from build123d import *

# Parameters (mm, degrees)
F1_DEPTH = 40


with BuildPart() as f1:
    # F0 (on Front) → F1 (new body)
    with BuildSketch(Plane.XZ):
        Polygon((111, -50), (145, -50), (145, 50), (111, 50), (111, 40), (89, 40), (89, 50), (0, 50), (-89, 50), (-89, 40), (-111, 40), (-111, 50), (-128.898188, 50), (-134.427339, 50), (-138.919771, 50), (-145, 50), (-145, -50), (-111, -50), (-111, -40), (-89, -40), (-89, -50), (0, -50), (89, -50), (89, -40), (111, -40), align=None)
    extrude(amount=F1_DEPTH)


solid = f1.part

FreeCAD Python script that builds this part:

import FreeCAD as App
import Part
import Sketcher

doc = App.newDocument("Part")
params = doc.addObject("Spreadsheet::Sheet", "Params")
for row, (alias, value) in enumerate([
    ("sketch1_width", "34 mm"),
    ("sketch1_width2", "22 mm"),
    ("sketch1_width3", "178 mm"),
    ("sketch1_height", "100 mm"),
    ("sketch1_height2", "10 mm"),
    ("pad1_length", "40 mm"),
], start=1):
    params.set(f"A{row}", alias)
    params.set(f"B{row}", "=" + value)
    params.setAlias(f"B{row}", alias)

body = doc.addObject("PartDesign::Body", "Body")

sketch1 = body.newObject("Sketcher::SketchObject", "Sketch")
sketch1.AttachmentSupport = (doc.getObject("XZ_Plane"), [""])
sketch1.MapMode = "FlatFace"
sketch1.addGeometry([
    Part.LineSegment(App.Vector(111, -50, 0), App.Vector(145, -50, 0)),
    Part.LineSegment(App.Vector(145, -50, 0), App.Vector(145, 50, 0)),
    Part.LineSegment(App.Vector(145, 50, 0), App.Vector(111, 50, 0)),
    Part.LineSegment(App.Vector(111, 50, 0), App.Vector(111, 40, 0)),
    Part.LineSegment(App.Vector(111, 40, 0), App.Vector(89, 40, 0)),
    Part.LineSegment(App.Vector(89, 40, 0), App.Vector(89, 50, 0)),
    Part.LineSegment(App.Vector(89, 50, 0), App.Vector(-89, 50, 0)),
    Part.LineSegment(App.Vector(-89, 50, 0), App.Vector(-89, 40, 0)),
    Part.LineSegment(App.Vector(-89, 40, 0), App.Vector(-111, 40, 0)),
    Part.LineSegment(App.Vector(-111, 40, 0), App.Vector(-111, 50, 0)),
    Part.LineSegment(App.Vector(-111, 50, 0), App.Vector(-145, 50, 0)),
    Part.LineSegment(App.Vector(-145, 50, 0), App.Vector(-145, -50, 0)),
    Part.LineSegment(App.Vector(-145, -50, 0), App.Vector(-111, -50, 0)),
    Part.LineSegment(App.Vector(-111, -50, 0), App.Vector(-111, -40, 0)),
    Part.LineSegment(App.Vector(-111, -40, 0), App.Vector(-89, -40, 0)),
    Part.LineSegment(App.Vector(-89, -40, 0), App.Vector(-89, -50, 0)),
    Part.LineSegment(App.Vector(-89, -50, 0), App.Vector(89, -50, 0)),
    Part.LineSegment(App.Vector(89, -50, 0), App.Vector(89, -40, 0)),
    Part.LineSegment(App.Vector(89, -40, 0), App.Vector(111, -40, 0)),
    Part.LineSegment(App.Vector(111, -40, 0), App.Vector(111, -50, 0)),
], False)
sketch1.addConstraint([
    Sketcher.Constraint("Coincident", 0, 2, 1, 1),
    Sketcher.Constraint("Coincident", 1, 2, 2, 1),
    Sketcher.Constraint("Coincident", 2, 2, 3, 1),
    Sketcher.Constraint("Coincident", 3, 2, 4, 1),
    Sketcher.Constraint("Coincident", 4, 2, 5, 1),
    Sketcher.Constraint("Coincident", 5, 2, 6, 1),
    Sketcher.Constraint("Coincident", 6, 2, 7, 1),
    Sketcher.Constraint("Coincident", 7, 2, 8, 1),
    Sketcher.Constraint("Coincident", 8, 2, 9, 1),
    Sketcher.Constraint("Coincident", 9, 2, 10, 1),
    Sketcher.Constraint("Coincident", 10, 2, 11, 1),
    Sketcher.Constraint("Coincident", 11, 2, 12, 1),
    Sketcher.Constraint("Coincident", 12, 2, 13, 1),
    Sketcher.Constraint("Coincident", 13, 2, 14, 1),
    Sketcher.Constraint("Coincident", 14, 2, 15, 1),
    Sketcher.Constraint("Coincident", 15, 2, 16, 1),
    Sketcher.Constraint("Coincident", 16, 2, 17, 1),
    Sketcher.Constraint("Coincident", 17, 2, 18, 1),
    Sketcher.Constraint("Coincident", 18, 2, 19, 1),
    Sketcher.Constraint("Coincident", 19, 2, 0, 1),
    Sketcher.Constraint("Horizontal", 0),
    Sketcher.Constraint("Vertical", 1),
    Sketcher.Constraint("Horizontal", 2),
    Sketcher.Constraint("Vertical", 3),
    Sketcher.Constraint("Horizontal", 4),
    Sketcher.Constraint("Vertical", 5),
    Sketcher.Constraint("Horizontal", 6),
    Sketcher.Constraint("Vertical", 7),
    Sketcher.Constraint("Horizontal", 8),
    Sketcher.Constraint("Vertical", 9),
    Sketcher.Constraint("Horizontal", 10),
    Sketcher.Constraint("Vertical", 11),
    Sketcher.Constraint("Horizontal", 12),
    Sketcher.Constraint("Vertical", 13),
    Sketcher.Constraint("Horizontal", 14),
    Sketcher.Constraint("Vertical", 15),
    Sketcher.Constraint("Horizontal", 16),
    Sketcher.Constraint("Vertical", 17),
    Sketcher.Constraint("Horizontal", 18),
    Sketcher.Constraint("Vertical", 19),
    Sketcher.Constraint("Symmetric", 0, 2, 10, 2, -1, 1),
    Sketcher.Constraint("Symmetric", 2, 2, 12, 2, -1, 1),
    Sketcher.Constraint("Symmetric", 4, 2, 14, 2, -1, 1),
    Sketcher.Constraint("Symmetric", 6, 2, 16, 2, -1, 1),
    Sketcher.Constraint("Symmetric", 8, 2, 18, 2, -1, 1),
    Sketcher.Constraint("Symmetric", 4, 2, 7, 2, -2),
    Sketcher.Constraint("Symmetric", 2, 2, 9, 2, -2),
    Sketcher.Constraint("Horizontal", 2, 2, 5, 2),
    Sketcher.Constraint("DistanceX", 0, 1, 0, 2, 34.0),
    Sketcher.Constraint("DistanceX", 4, 2, 4, 1, 22.0),
    Sketcher.Constraint("DistanceX", 6, 2, 6, 1, 178.0),
    Sketcher.Constraint("DistanceY", 1, 1, 1, 2, 100.0),
    Sketcher.Constraint("DistanceY", 3, 2, 3, 1, 10.0),
])
sketch1.setExpression("Constraints[48]", "Params.sketch1_width")
sketch1.setExpression("Constraints[49]", "Params.sketch1_width2")
sketch1.setExpression("Constraints[50]", "Params.sketch1_width3")
sketch1.setExpression("Constraints[51]", "Params.sketch1_height")
sketch1.setExpression("Constraints[52]", "Params.sketch1_height2")
pad1 = body.newObject("PartDesign::Pad", "Pad")
pad1.Profile = sketch1
pad1.setExpression("Length", "Params.pad1_length")

doc.recompute()
